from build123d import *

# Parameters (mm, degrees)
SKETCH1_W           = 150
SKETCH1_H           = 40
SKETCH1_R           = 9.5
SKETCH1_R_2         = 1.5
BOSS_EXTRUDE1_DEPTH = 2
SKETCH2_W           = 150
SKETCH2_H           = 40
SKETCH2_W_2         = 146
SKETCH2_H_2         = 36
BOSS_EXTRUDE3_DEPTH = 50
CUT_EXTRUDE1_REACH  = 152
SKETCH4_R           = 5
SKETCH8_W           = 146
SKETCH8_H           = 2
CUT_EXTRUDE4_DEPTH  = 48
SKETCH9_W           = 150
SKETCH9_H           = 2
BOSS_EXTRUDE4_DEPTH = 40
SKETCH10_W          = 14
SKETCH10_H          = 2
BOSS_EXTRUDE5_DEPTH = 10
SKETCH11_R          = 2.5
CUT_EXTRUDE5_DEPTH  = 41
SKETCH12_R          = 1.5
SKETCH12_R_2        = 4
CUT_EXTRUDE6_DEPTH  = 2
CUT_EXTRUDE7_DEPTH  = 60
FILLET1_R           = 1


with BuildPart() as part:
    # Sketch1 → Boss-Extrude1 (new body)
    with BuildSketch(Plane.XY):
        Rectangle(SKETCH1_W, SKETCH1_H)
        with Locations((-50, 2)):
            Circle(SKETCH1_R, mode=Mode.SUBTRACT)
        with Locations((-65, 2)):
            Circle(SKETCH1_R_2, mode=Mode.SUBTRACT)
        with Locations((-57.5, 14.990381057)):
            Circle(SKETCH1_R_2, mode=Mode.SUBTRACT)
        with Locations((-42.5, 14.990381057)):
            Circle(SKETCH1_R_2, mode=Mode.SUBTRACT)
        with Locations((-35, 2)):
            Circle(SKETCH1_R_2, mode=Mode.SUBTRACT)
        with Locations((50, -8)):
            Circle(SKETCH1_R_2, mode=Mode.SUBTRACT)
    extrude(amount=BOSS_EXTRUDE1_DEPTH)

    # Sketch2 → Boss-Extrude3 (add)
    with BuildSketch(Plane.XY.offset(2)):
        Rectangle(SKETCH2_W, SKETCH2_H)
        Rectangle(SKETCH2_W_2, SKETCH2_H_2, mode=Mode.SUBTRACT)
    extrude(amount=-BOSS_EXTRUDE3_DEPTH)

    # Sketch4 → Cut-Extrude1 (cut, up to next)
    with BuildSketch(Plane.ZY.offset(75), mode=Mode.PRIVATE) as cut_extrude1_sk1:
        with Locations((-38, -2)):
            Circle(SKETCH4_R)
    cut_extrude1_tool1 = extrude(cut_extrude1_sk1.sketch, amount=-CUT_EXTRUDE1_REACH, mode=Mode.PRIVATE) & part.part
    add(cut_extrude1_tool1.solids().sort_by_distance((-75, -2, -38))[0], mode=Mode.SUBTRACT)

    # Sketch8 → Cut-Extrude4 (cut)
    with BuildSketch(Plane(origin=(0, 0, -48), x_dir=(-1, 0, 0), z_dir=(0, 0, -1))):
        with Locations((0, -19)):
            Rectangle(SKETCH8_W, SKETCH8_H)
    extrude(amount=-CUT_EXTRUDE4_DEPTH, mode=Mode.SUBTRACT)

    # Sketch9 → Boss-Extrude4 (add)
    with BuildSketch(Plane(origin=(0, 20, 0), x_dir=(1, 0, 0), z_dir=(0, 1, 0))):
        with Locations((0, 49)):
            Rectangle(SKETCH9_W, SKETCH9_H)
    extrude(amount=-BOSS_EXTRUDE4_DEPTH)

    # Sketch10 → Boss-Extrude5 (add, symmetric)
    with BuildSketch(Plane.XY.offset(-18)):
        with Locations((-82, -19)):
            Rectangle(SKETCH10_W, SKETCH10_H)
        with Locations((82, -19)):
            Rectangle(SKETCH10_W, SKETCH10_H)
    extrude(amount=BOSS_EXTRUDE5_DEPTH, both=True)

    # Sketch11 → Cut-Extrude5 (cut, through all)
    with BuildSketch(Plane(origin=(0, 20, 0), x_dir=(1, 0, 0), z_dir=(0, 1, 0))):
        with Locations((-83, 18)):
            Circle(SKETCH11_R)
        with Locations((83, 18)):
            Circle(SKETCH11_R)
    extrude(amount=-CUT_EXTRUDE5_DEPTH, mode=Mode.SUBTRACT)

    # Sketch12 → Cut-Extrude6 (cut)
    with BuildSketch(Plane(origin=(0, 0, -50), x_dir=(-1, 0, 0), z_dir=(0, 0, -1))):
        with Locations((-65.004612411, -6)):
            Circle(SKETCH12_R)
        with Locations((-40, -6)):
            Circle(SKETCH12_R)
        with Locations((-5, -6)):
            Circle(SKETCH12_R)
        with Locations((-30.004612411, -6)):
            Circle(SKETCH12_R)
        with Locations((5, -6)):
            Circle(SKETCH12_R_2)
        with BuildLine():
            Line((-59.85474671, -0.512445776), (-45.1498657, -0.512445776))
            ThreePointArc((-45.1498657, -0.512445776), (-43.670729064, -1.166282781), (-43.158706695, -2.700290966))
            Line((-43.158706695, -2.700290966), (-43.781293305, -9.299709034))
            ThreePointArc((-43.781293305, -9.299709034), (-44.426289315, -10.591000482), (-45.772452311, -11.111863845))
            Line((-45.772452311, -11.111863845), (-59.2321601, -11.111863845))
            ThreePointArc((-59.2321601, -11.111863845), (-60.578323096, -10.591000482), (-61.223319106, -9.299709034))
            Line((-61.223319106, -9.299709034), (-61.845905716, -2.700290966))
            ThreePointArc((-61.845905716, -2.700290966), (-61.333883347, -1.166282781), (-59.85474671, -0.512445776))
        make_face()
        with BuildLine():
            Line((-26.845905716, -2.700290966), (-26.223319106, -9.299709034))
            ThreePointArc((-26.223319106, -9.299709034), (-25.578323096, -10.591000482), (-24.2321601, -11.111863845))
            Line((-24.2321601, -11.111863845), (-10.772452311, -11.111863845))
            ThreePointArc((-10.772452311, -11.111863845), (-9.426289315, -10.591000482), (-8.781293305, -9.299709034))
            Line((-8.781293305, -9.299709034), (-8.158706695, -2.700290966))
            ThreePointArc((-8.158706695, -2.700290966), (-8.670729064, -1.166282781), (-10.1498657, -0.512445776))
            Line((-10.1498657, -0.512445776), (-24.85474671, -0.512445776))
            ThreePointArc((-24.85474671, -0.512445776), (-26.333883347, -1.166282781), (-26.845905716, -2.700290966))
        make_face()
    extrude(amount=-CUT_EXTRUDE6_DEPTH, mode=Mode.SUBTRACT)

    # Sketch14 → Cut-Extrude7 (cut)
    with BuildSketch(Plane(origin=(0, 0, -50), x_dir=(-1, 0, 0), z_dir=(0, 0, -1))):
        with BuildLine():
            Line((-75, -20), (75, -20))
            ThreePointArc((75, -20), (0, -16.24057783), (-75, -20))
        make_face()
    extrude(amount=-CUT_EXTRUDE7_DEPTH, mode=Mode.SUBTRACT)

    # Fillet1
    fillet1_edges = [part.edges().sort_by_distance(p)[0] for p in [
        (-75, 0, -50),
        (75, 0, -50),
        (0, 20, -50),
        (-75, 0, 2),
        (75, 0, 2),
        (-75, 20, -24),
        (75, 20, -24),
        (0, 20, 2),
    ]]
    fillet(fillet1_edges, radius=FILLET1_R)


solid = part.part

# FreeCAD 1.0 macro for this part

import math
import FreeCAD as App
import Part
import Sketcher
Q = App.Units.Quantity


def edges_at(feature, points):
    """Names of the edges that pass closest to the given points."""
    edges = feature.Shape.Edges
    near = lambda p: min(range(len(edges)), key=lambda i: edges[i].distToShape(Part.Vertex(*p))[0])
    return sorted({f"Edge{near(p) + 1}" for p in points})


def add_polygon(sketch, points):
    """Adds a closed chain of lines whose ends are joined by coincident constraints."""
    first, n = sketch.GeometryCount, len(points)
    for a, b in zip(points, points[1:] + points[:1]):
        sketch.addGeometry(Part.LineSegment(App.Vector(*a, 0), App.Vector(*b, 0)), False)
    for i in range(n):
        sketch.addConstraint(Sketcher.Constraint("Coincident", first + i, 2, first + (i + 1) % n, 1))

doc = App.newDocument("Part")
body = doc.addObject("PartDesign::Body", "Body")

sketch1 = body.newObject("Sketcher::SketchObject", "Sketch")
sketch1.AttachmentSupport = (doc.getObject("XY_Plane"), [""])
sketch1.MapMode = "FlatFace"
add_polygon(sketch1, [(-75, 20), (-75, -20), (75, -20), (75, 20)])
sketch1.addGeometry(Part.Circle(App.Vector(-65, 2, 0), App.Vector(0, 0, 1), 1.5), False)
sketch1.addGeometry(Part.Circle(App.Vector(-50, 2, 0), App.Vector(0, 0, 1), 9.5), False)
sketch1.addGeometry(Part.Circle(App.Vector(-35, 2, 0), App.Vector(0, 0, 1), 1.5), False)
sketch1.addGeometry(Part.Circle(App.Vector(50, -8, 0), App.Vector(0, 0, 1), 1.5), False)
sketch1.addGeometry(Part.Circle(App.Vector(-57.5, 15, 0), App.Vector(0, 0, 1), 1.5), False)
sketch1.addGeometry(Part.Circle(App.Vector(-42.5, 15, 0), App.Vector(0, 0, 1), 1.5), False)
sketch1.addConstraint([
    Sketcher.Constraint("Vertical", 0),
    Sketcher.Constraint("Horizontal", 1),
    Sketcher.Constraint("Vertical", 2),
    Sketcher.Constraint("Horizontal", 3),
    Sketcher.Constraint("Equal", 4, 6),
    Sketcher.Constraint("Equal", 6, 7),
    Sketcher.Constraint("Equal", 7, 8),
    Sketcher.Constraint("Equal", 8, 9),
    Sketcher.Constraint("Symmetric", 0, 2, 2, 2, -1, 1),
    Sketcher.Constraint("Horizontal", 4, 3, 5, 3),
    Sketcher.Constraint("Horizontal", 5, 3, 6, 3),
    Sketcher.Constraint("Horizontal", 8, 3, 9, 3),
    Sketcher.Constraint("Diameter", 4, Q("3 mm")),
    Sketcher.Constraint("Diameter", 5, Q("19 mm")),
    Sketcher.Constraint("DistanceX", 1, 1, 1, 2, Q("150 mm")),
    Sketcher.Constraint("DistanceY", 0, 2, 0, 1, Q("40 mm")),
    Sketcher.Constraint("DistanceX", 4, 3, -1, 1, Q("65 mm")),
    Sketcher.Constraint("DistanceY", -1, 1, 4, 3, Q("2 mm")),
    Sketcher.Constraint("DistanceX", 5, 3, -1, 1, Q("50 mm")),
    Sketcher.Constraint("DistanceX", 6, 3, -1, 1, Q("35 mm")),
    Sketcher.Constraint("DistanceX", -1, 1, 7, 3, Q("50 mm")),
    Sketcher.Constraint("DistanceY", 7, 3, -1, 1, Q("8 mm")),
    Sketcher.Constraint("DistanceX", 8, 3, 9, 3, Q("15 mm")),
    Sketcher.Constraint("DistanceX", 8, 3, -1, 1, Q("57.5 mm")),
    Sketcher.Constraint("DistanceY", -1, 1, 8, 3, Q("14.990381 mm")),
])
pad1 = body.newObject("PartDesign::Pad", "Pad")
pad1.Profile = sketch1
pad1.Length = 2

sketch2 = body.newObject("Sketcher::SketchObject", "Sketch001")
sketch2.AttachmentSupport = (doc.getObject("XY_Plane"), [""])
sketch2.MapMode = "FlatFace"
sketch2.AttachmentOffset = App.Placement(App.Vector(0, 0, 2), App.Rotation())
add_polygon(sketch2, [(-75, 20), (-75, -20), (75, -20), (75, 20)])
add_polygon(sketch2, [(73, -18), (-73, -18), (-73, 18), (73, 18)])
sketch2.addConstraint([
    Sketcher.Constraint("Vertical", 0),
    Sketcher.Constraint("Horizontal", 1),
    Sketcher.Constraint("Vertical", 2),
    Sketcher.Constraint("Horizontal", 3),
    Sketcher.Constraint("Horizontal", 4),
    Sketcher.Constraint("Vertical", 5),
    Sketcher.Constraint("Horizontal", 6),
    Sketcher.Constraint("Vertical", 7),
    Sketcher.Constraint("Symmetric", 0, 2, 2, 2, -1, 1),
    Sketcher.Constraint("Symmetric", 4, 2, 6, 2, -1, 1),
    Sketcher.Constraint("DistanceX", 1, 1, 1, 2, Q("150 mm")),
    Sketcher.Constraint("DistanceX", 4, 2, 4, 1, Q("146 mm")),
    Sketcher.Constraint("DistanceY", 0, 2, 0, 1, Q("40 mm")),
    Sketcher.Constraint("DistanceY", 5, 1, 5, 2, Q("36 mm")),
])
pad2 = body.newObject("PartDesign::Pad", "Pad001")
pad2.Profile = sketch2
pad2.Length = 50
pad2.Reversed = True

sketch3 = body.newObject("Sketcher::SketchObject", "Sketch002")
sketch3.AttachmentSupport = (doc.getObject("YZ_Plane"), [""])
sketch3.MapMode = "FlatFace"
sketch3.AttachmentOffset = App.Placement(App.Vector(0, 0, -75), App.Rotation())
sketch3.addGeometry(Part.Circle(App.Vector(-2, -38, 0), App.Vector(0, 0, 1), 5), False)
sketch3.addConstraint([
    Sketcher.Constraint("Diameter", 0, Q("10 mm")),
    Sketcher.Constraint("DistanceX", 0, 3, -1, 1, Q("2 mm")),
    Sketcher.Constraint("DistanceY", 0, 3, -1, 1, Q("38 mm")),
])
pocket1 = body.newObject("PartDesign::Pocket", "Pocket")
pocket1.Profile = sketch3
pocket1.Type = "UpToFirst"
pocket1.Reversed = True

sketch4 = body.newObject("Sketcher::SketchObject", "Sketch003")
sketch4.AttachmentSupport = (doc.getObject("XY_Plane"), [""])
sketch4.MapMode = "FlatFace"
sketch4.AttachmentOffset = App.Placement(App.Vector(0, 0, -48), App.Rotation())
add_polygon(sketch4, [(73, -18), (73, -20), (-73, -20), (-73, -18)])
sketch4.addConstraint([
    Sketcher.Constraint("Vertical", 0),
    Sketcher.Constraint("Horizontal", 1),
    Sketcher.Constraint("Vertical", 2),
    Sketcher.Constraint("Horizontal", 3),
    Sketcher.Constraint("DistanceX", 1, 2, 1, 1, Q("146 mm")),
    Sketcher.Constraint("DistanceY", 0, 2, 0, 1, Q("2 mm")),
    Sketcher.Constraint("DistanceX", -1, 1, 0, 2, Q("73 mm")),
    Sketcher.Constraint("DistanceY", 0, 2, -1, 1, Q("20 mm")),
])
pocket2 = body.newObject("PartDesign::Pocket", "Pocket001")
pocket2.Profile = sketch4
pocket2.Length = 48
pocket2.Reversed = True

sketch5 = body.newObject("Sketcher::SketchObject", "Sketch004")
sketch5.AttachmentSupport = (doc.getObject("XZ_Plane"), [""])
sketch5.MapMode = "FlatFace"
sketch5.AttachmentOffset = App.Placement(App.Vector(0, 0, -20), App.Rotation())
add_polygon(sketch5, [(-75, -50), (-75, -48), (75, -48), (75, -50)])
sketch5.addConstraint([
    Sketcher.Constraint("Vertical", 0),
    Sketcher.Constraint("Horizontal", 1),
    Sketcher.Constraint("Vertical", 2),
    Sketcher.Constraint("Horizontal", 3),
    Sketcher.Constraint("DistanceX", 1, 1, 1, 2, Q("150 mm")),
    Sketcher.Constraint("DistanceY", 0, 1, 0, 2, Q("2 mm")),
    Sketcher.Constraint("DistanceX", 0, 2, -1, 1, Q("75 mm")),
    Sketcher.Constraint("DistanceY", 0, 2, -1, 1, Q("48 mm")),
])
pad3 = body.newObject("PartDesign::Pad", "Pad002")
pad3.Profile = sketch5
pad3.Length = 40

sketch6 = body.newObject("Sketcher::SketchObject", "Sketch005")
sketch6.AttachmentSupport = (doc.getObject("XY_Plane"), [""])
sketch6.MapMode = "FlatFace"
sketch6.AttachmentOffset = App.Placement(App.Vector(0, 0, -18), App.Rotation())
add_polygon(sketch6, [(-89, -18), (-89, -20), (-75, -20), (-75, -18)])
add_polygon(sketch6, [(75, -18), (75, -20), (89, -20), (89, -18)])
sketch6.addConstraint([
    Sketcher.Constraint("Vertical", 0),
    Sketcher.Constraint("Horizontal", 1),
    Sketcher.Constraint("Vertical", 2),
    Sketcher.Constraint("Horizontal", 3),
    Sketcher.Constraint("Vertical", 4),
    Sketcher.Constraint("Horizontal", 5),
    Sketcher.Constraint("Vertical", 6),
    Sketcher.Constraint("Horizontal", 7),
    Sketcher.Constraint("Symmetric", 1, 2, 4, 2, -2),
    Sketcher.Constraint("Symmetric", 3, 2, 6, 2, -2),
    Sketcher.Constraint("DistanceX", 1, 1, 1, 2, Q("14 mm")),
    Sketcher.Constraint("DistanceY", 0, 2, 0, 1, Q("2 mm")),
    Sketcher.Constraint("DistanceX", 0, 2, -1, 1, Q("89 mm")),
    Sketcher.Constraint("DistanceY", 0, 2, -1, 1, Q("20 mm")),
])
pad4 = body.newObject("PartDesign::Pad", "Pad003")
pad4.Profile = sketch6
pad4.Length = 20
pad4.Midplane = True

sketch7 = body.newObject("Sketcher::SketchObject", "Sketch006")
sketch7.AttachmentSupport = (doc.getObject("XZ_Plane"), [""])
sketch7.MapMode = "FlatFace"
sketch7.AttachmentOffset = App.Placement(App.Vector(0, 0, -20), App.Rotation())
sketch7.addGeometry([
    Part.Circle(App.Vector(-83, -18, 0), App.Vector(0, 0, 1), 2.5),
    Part.Circle(App.Vector(83, -18, 0), App.Vector(0, 0, 1), 2.5),
], False)
sketch7.addConstraint([
    Sketcher.Constraint("Equal", 0, 1),
    Sketcher.Constraint("Symmetric", 0, 3, 1, 3, -2),
    Sketcher.Constraint("Diameter", 0, Q("5 mm")),
    Sketcher.Constraint("DistanceX", 0, 3, -1, 1, Q("83 mm")),
    Sketcher.Constraint("DistanceY", 0, 3, -1, 1, Q("18 mm")),
])
pocket3 = body.newObject("PartDesign::Pocket", "Pocket002")
pocket3.Profile = sketch7
pocket3.Type = "ThroughAll"
pocket3.Reversed = True

sketch8 = body.newObject("Sketcher::SketchObject", "Sketch007")
sketch8.AttachmentSupport = (doc.getObject("XY_Plane"), [""])
sketch8.MapMode = "FlatFace"
sketch8.AttachmentOffset = App.Placement(App.Vector(0, 0, -50), App.Rotation())
sketch8.addGeometry([
    Part.Circle(App.Vector(65, -6, 0), App.Vector(0, 0, 1), 1.5),
    Part.Circle(App.Vector(40, -6, 0), App.Vector(0, 0, 1), 1.5),
    Part.Circle(App.Vector(5, -6, 0), App.Vector(0, 0, 1), 1.5),
    Part.Circle(App.Vector(30, -6, 0), App.Vector(0, 0, 1), 1.5),
    Part.Circle(App.Vector(-5, -6, 0), App.Vector(0, 0, 1), 4),
    Part.LineSegment(App.Vector(45.1, -0.5, 0), App.Vector(59.9, -0.5, 0)),
    Part.ArcOfCircle(Part.Circle(App.Vector(59.9, -2.5, 0), App.Vector(0, 0, 1), 2), math.radians(-5), math.radians(90)),
    Part.LineSegment(App.Vector(61.8, -2.7, 0), App.Vector(61.2, -9.3, 0)),
    Part.ArcOfCircle(Part.Circle(App.Vector(59.2, -9.1, 0), App.Vector(0, 0, 1), 2), math.radians(-90), math.radians(-5)),
    Part.LineSegment(App.Vector(59.2, -11.1, 0), App.Vector(45.8, -11.1, 0)),
    Part.ArcOfCircle(Part.Circle(App.Vector(45.8, -9.1, 0), App.Vector(0, 0, 1), 2), math.radians(-175), math.radians(-90)),
    Part.LineSegment(App.Vector(43.8, -9.3, 0), App.Vector(43.2, -2.7, 0)),
    Part.ArcOfCircle(Part.Circle(App.Vector(45.1, -2.5, 0), App.Vector(0, 0, 1), 2), math.radians(90), math.radians(185)),
    Part.LineSegment(App.Vector(26.8, -2.7, 0), App.Vector(26.2, -9.3, 0)),
    Part.ArcOfCircle(Part.Circle(App.Vector(24.2, -9.1, 0), App.Vector(0, 0, 1), 2), math.radians(-90), math.radians(-5)),
    Part.LineSegment(App.Vector(24.2, -11.1, 0), App.Vector(10.8, -11.1, 0)),
    Part.ArcOfCircle(Part.Circle(App.Vector(10.8, -9.1, 0), App.Vector(0, 0, 1), 2), math.radians(-175), math.radians(-90)),
    Part.LineSegment(App.Vector(8.8, -9.3, 0), App.Vector(8.2, -2.7, 0)),
    Part.ArcOfCircle(Part.Circle(App.Vector(10.1, -2.5, 0), App.Vector(0, 0, 1), 2), math.radians(90), math.radians(185)),
    Part.LineSegment(App.Vector(10.1, -0.5, 0), App.Vector(24.9, -0.5, 0)),
    Part.ArcOfCircle(Part.Circle(App.Vector(24.9, -2.5, 0), App.Vector(0, 0, 1), 2), math.radians(-5), math.radians(90)),
], False)
sketch8.addConstraint([
    Sketcher.Constraint("Tangent", 5, 2, 6, 2),
    Sketcher.Constraint("Tangent", 6, 1, 7, 1),
    Sketcher.Constraint("Tangent", 7, 2, 8, 2),
    Sketcher.Constraint("Tangent", 8, 1, 9, 1),
    Sketcher.Constraint("Tangent", 9, 2, 10, 2),
    Sketcher.Constraint("Tangent", 10, 1, 11, 1),
    Sketcher.Constraint("Tangent", 11, 2, 12, 2),
    Sketcher.Constraint("Tangent", 12, 1, 5, 1),
    Sketcher.Constraint("Tangent", 13, 2, 14, 2),
    Sketcher.Constraint("Tangent", 14, 1, 15, 1),
    Sketcher.Constraint("Tangent", 15, 2, 16, 2),
    Sketcher.Constraint("Tangent", 16, 1, 17, 1),
    Sketcher.Constraint("Tangent", 17, 2, 18, 2),
    Sketcher.Constraint("Tangent", 18, 1, 19, 1),
    Sketcher.Constraint("Tangent", 19, 2, 20, 2),
    Sketcher.Constraint("Tangent", 20, 1, 13, 1),
    Sketcher.Constraint("Horizontal", 5),
    Sketcher.Constraint("Horizontal", 9),
    Sketcher.Constraint("Horizontal", 15),
    Sketcher.Constraint("Horizontal", 19),
    Sketcher.Constraint("Equal", 0, 1),
    Sketcher.Constraint("Equal", 1, 2),
    Sketcher.Constraint("Equal", 2, 3),
    Sketcher.Constraint("Equal", 6, 8),
    Sketcher.Constraint("Equal", 8, 10),
    Sketcher.Constraint("Equal", 10, 12),
    Sketcher.Constraint("Equal", 12, 14),
    Sketcher.Constraint("Equal", 14, 16),
    Sketcher.Constraint("Equal", 16, 18),
    Sketcher.Constraint("Equal", 18, 20),
    Sketcher.Constraint("Symmetric", 2, 3, 4, 3, -2),
    Sketcher.Constraint("Parallel", 7, 13),
    Sketcher.Constraint("Parallel", 11, 17),
    Sketcher.Constraint("Horizontal", 0, 3, 1, 3),
    Sketcher.Constraint("Horizontal", 1, 3, 2, 3),
    Sketcher.Constraint("Horizontal", 2, 3, 3, 3),
    Sketcher.Constraint("Horizontal", 10, 3, 14, 3),
    Sketcher.Constraint("Horizontal", 12, 3, 18, 3),
    Sketcher.Constraint("Horizontal", 7, 2, 10, 1),
    Sketcher.Constraint("Equal", 9, 15),
    Sketcher.Constraint("Diameter", 0, Q("3 mm")),
    Sketcher.Constraint("Diameter", 4, Q("8 mm")),
    Sketcher.Constraint("Radius", 6, Q("2 mm")),
    Sketcher.Constraint("DistanceY", 0, 3, -1, 1, Q("6 mm")),
    Sketcher.Constraint("DistanceX", -1, 1, 1, 3, Q("40 mm")),
    Sketcher.Constraint("DistanceX", -1, 1, 2, 3, Q("5 mm")),
    Sketcher.Constraint("DistanceX", 3, 3, 0, 3, Q("35 mm")),
    Sketcher.Constraint("DistanceX", 5, 1, 5, 2, Q("14.704881 mm")),
    Sketcher.Constraint("Distance", 7, Q("6.62872 mm")),
    Sketcher.Constraint("DistanceX", 9, 2, 9, 1, Q("13.459708 mm")),
    Sketcher.Constraint("DistanceX", -1, 1, 8, 3, Q("59.23216 mm")),
    Sketcher.Constraint("DistanceX", -1, 1, 14, 3, Q("24.23216 mm")),
    Sketcher.Constraint("DistanceY", 6, 1, -1, 1, Q("2.700291 mm")),
    Sketcher.Constraint("DistanceX", 3, 3, 10, 3, Q("15.76784 mm")),
])
pocket4 = body.newObject("PartDesign::Pocket", "Pocket003")
pocket4.Profile = sketch8
pocket4.Length = 2
pocket4.Reversed = True

sketch9 = body.newObject("Sketcher::SketchObject", "Sketch008")
sketch9.AttachmentSupport = (doc.getObject("XY_Plane"), [""])
sketch9.MapMode = "FlatFace"
sketch9.AttachmentOffset = App.Placement(App.Vector(0, 0, -50), App.Rotation())
sketch9.addGeometry([
    Part.LineSegment(App.Vector(75, -20, 0), App.Vector(-75, -20, 0)),
    Part.ArcOfCircle(Part.Circle(App.Vector(0, -766, 0), App.Vector(0, 0, 1), 750), math.radians(84.26), math.radians(95.74)),
], False)
sketch9.addConstraint([
    Sketcher.Constraint("Coincident", 0, 1, 1, 1),
    Sketcher.Constraint("Coincident", 1, 2, 0, 2),
    Sketcher.Constraint("Horizontal", 0),
    Sketcher.Constraint("PointOnObject", 1, 3, -2),
    Sketcher.Constraint("Radius", 1, Q("750 mm")),
    Sketcher.Constraint("DistanceX", 0, 2, 0, 1, Q("150 mm")),
    Sketcher.Constraint("DistanceY", 0, 1, -1, 1, Q("20 mm")),
])
pocket5 = body.newObject("PartDesign::Pocket", "Pocket004")
pocket5.Profile = sketch9
pocket5.Length = 60
pocket5.Reversed = True
doc.recompute()

fillet = body.newObject("PartDesign::Fillet", "Fillet")
fillet.Base = (pocket5, edges_at(pocket5, [
    (-75, 0, -50),
    (75, 0, -50),
    (0, 20, -50),
    (-75, 0, 2),
    (75, 0, 2),
    (-75, 20, -24),
    (75, 20, -24),
    (0, 20, 2),
]))
fillet.Radius = 1

doc.recompute()
